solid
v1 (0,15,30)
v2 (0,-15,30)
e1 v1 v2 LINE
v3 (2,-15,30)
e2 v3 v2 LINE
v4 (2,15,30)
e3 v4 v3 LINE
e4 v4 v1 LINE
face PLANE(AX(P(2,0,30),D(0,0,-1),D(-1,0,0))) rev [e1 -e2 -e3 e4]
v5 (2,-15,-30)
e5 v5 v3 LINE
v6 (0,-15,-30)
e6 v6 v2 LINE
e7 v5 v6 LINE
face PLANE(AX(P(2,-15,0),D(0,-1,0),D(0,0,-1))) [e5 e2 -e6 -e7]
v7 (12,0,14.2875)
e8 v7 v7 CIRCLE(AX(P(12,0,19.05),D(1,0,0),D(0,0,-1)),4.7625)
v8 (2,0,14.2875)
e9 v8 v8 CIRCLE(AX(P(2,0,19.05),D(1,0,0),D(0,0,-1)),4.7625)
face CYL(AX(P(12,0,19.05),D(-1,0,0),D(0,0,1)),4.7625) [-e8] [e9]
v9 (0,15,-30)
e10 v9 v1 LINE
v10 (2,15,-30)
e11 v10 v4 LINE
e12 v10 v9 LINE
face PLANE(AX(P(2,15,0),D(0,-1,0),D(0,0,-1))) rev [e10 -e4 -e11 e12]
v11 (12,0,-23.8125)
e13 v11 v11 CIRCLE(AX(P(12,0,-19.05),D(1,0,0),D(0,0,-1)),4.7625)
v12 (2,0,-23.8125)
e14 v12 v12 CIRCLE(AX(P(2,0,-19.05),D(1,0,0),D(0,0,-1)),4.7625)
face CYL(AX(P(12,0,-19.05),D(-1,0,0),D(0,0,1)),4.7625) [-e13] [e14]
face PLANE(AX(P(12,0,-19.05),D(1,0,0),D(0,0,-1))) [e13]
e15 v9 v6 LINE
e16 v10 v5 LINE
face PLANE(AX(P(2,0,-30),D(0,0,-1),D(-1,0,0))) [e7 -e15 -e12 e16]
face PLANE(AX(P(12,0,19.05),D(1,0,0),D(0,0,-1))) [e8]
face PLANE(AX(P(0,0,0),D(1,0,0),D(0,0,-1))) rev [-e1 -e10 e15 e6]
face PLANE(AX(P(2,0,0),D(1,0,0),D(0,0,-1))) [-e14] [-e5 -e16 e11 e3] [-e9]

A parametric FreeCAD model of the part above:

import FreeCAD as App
import Part
import Sketcher

V = App.Vector
Q = App.Units.Quantity

doc = App.newDocument("Part")
body = doc.addObject("PartDesign::Body", "Body")

sketch1 = body.newObject("Sketcher::SketchObject", "Sketch")
sketch1.AttachmentSupport = (doc.getObject("YZ_Plane"), [""])
sketch1.MapMode = "FlatFace"
sketch1.addGeometry([
    Part.LineSegment(V(15, 30, 0), V(-15, 30, 0)),
    Part.LineSegment(V(-15, 30, 0), V(-15, -30, 0)),
    Part.LineSegment(V(-15, -30, 0), V(15, -30, 0)),
    Part.LineSegment(V(15, -30, 0), V(15, 30, 0)),
], False)
sketch1.addConstraint([
    Sketcher.Constraint("Coincident", 0, 2, 1, 1),
    Sketcher.Constraint("Coincident", 1, 2, 2, 1),
    Sketcher.Constraint("Coincident", 2, 2, 3, 1),
    Sketcher.Constraint("Coincident", 3, 2, 0, 1),
    Sketcher.Constraint("Horizontal", 0),
    Sketcher.Constraint("Vertical", 1),
    Sketcher.Constraint("Horizontal", 2),
    Sketcher.Constraint("Vertical", 3),
    Sketcher.Constraint("Symmetric", 0, 2, 2, 2, -1, 1),
    Sketcher.Constraint("DistanceX", 0, 2, 0, 1, Q("30 mm")),
    Sketcher.Constraint("DistanceY", 1, 2, 1, 1, Q("60 mm")),
])
pad1 = body.newObject("PartDesign::Pad", "Pad")
pad1.Profile = sketch1
pad1.Length = 2

sketch2 = body.newObject("Sketcher::SketchObject", "Sketch001")
sketch2.AttachmentSupport = (doc.getObject("YZ_Plane"), [""])
sketch2.MapMode = "FlatFace"
sketch2.AttachmentOffset = App.Placement(V(0, 0, 2), App.Rotation())
sketch2.addGeometry([
    Part.Circle(V(0, 19.1, 0), V(0, 0, 1), 4.8),
    Part.Circle(V(0, -19.1, 0), V(0, 0, 1), 4.8),
], False)
sketch2.addConstraint([
    Sketcher.Constraint("Equal", 0, 1),
    Sketcher.Constraint("Symmetric", 0, 3, 1, 3, -1, 1),
    Sketcher.Constraint("PointOnObject", 0, 3, -2),
    Sketcher.Constraint("Diameter", 0, Q("9.525 mm")),
    Sketcher.Constraint("DistanceY", 1, 3, 0, 3, Q("38.1 mm")),
])
pad2 = body.newObject("PartDesign::Pad", "Pad001")
pad2.Profile = sketch2
pad2.Length = 10

doc.recompute()
